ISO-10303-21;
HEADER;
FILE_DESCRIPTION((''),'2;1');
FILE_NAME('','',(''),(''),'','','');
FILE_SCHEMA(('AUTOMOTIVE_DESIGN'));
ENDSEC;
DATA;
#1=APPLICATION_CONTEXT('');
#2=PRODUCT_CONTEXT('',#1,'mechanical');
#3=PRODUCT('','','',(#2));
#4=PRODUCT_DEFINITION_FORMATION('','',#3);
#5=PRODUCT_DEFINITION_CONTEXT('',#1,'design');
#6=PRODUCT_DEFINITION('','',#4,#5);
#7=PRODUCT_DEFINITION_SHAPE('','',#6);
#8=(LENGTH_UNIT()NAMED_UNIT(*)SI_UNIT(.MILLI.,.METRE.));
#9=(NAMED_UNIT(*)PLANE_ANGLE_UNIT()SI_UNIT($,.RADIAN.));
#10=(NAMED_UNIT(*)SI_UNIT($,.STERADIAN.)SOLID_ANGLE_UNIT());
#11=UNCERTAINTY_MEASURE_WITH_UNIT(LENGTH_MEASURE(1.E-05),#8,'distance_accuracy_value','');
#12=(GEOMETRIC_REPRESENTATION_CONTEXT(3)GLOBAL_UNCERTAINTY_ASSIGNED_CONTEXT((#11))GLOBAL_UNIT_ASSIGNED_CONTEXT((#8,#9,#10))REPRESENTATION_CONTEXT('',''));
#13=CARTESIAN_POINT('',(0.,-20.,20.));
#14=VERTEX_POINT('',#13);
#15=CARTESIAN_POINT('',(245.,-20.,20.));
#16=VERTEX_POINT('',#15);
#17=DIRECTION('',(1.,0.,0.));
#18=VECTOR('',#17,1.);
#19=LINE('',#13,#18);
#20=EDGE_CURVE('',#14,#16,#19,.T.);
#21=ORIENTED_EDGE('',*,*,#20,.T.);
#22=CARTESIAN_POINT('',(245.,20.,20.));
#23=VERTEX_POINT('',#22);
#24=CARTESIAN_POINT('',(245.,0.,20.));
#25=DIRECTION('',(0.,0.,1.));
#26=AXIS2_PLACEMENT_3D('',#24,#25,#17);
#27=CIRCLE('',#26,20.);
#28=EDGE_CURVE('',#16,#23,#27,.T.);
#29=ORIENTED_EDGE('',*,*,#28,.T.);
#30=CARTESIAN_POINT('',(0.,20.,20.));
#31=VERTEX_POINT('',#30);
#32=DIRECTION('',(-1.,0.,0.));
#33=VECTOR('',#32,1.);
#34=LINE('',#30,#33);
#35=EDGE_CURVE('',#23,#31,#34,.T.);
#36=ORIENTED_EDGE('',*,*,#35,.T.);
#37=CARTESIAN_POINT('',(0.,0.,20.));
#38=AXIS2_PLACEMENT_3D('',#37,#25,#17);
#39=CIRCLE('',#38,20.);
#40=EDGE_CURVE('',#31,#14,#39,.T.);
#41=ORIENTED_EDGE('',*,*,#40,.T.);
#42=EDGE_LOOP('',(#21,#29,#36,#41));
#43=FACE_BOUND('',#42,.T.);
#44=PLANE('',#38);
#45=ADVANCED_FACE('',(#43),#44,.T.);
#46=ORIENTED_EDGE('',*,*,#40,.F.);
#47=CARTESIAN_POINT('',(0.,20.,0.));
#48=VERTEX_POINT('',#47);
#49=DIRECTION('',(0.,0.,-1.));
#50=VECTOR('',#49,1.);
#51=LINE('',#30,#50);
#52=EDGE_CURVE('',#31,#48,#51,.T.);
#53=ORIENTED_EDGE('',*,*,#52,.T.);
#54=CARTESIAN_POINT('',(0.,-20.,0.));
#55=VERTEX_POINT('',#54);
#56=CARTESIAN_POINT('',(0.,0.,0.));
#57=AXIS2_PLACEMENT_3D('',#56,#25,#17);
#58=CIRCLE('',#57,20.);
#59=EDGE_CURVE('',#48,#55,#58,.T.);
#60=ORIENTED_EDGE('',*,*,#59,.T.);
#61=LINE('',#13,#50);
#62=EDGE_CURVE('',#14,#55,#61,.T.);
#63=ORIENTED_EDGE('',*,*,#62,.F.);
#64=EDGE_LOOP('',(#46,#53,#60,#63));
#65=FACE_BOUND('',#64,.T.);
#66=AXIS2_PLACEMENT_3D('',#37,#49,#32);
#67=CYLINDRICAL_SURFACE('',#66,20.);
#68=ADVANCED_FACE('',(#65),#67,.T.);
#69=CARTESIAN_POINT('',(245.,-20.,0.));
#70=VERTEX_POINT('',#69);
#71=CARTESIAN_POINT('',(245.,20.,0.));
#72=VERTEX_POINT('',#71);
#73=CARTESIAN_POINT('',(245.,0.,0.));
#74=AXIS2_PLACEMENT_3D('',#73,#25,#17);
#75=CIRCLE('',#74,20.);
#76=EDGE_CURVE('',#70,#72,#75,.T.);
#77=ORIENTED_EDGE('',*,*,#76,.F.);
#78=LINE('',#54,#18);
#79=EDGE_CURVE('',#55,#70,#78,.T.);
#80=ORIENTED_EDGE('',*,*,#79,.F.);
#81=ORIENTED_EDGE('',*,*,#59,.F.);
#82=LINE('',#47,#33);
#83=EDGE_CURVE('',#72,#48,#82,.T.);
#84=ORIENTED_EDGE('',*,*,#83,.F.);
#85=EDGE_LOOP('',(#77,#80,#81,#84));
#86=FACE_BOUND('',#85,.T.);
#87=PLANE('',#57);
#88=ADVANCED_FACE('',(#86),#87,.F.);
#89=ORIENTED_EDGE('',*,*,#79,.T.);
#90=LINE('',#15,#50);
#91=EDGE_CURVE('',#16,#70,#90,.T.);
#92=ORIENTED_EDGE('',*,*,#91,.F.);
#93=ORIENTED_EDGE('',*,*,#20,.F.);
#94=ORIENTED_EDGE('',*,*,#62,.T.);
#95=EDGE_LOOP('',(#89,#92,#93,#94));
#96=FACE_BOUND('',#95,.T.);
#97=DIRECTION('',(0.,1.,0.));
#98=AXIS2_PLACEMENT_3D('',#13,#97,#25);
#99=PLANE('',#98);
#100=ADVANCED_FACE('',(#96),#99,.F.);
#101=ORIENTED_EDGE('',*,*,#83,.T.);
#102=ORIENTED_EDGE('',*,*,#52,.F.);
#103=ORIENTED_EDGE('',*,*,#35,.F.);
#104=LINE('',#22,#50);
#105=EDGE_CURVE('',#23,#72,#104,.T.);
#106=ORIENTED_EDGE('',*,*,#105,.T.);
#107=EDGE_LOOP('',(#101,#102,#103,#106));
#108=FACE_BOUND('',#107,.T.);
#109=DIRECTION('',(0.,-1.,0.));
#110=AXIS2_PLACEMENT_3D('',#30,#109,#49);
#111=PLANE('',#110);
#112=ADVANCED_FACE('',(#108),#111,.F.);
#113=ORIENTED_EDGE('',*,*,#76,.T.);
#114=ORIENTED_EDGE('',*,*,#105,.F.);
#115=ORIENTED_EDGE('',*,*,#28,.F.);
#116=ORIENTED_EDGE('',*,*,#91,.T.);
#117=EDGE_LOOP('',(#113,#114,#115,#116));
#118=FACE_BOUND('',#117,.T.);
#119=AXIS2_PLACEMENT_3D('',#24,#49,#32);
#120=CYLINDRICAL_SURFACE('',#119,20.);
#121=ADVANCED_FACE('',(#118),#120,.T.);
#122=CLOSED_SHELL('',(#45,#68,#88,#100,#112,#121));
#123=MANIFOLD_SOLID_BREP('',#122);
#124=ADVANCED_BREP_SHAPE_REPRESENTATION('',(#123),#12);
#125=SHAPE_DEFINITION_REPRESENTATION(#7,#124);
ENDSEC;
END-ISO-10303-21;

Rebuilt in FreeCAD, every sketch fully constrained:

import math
import FreeCAD as App
import Part
import Sketcher
Q = App.Units.Quantity

doc = App.newDocument("Part")
body = doc.addObject("PartDesign::Body", "Body")

# Sketch on XY plane
sketch1 = doc.addObject("Sketcher::SketchObject", "Sketch")
body.addObject(sketch1)
sketch1.AttachmentSupport = (doc.XY_Plane, [""])
sketch1.MapMode = "FlatFace"
sketch1.addGeometry(Part.LineSegment(App.Vector(245, 20, 0), App.Vector(0, 20, 0)), False)
sketch1.addGeometry(Part.ArcOfCircle(Part.Circle(App.Vector(0, 0, 0), App.Vector(0, 0, 1), 20), math.radians(90), math.radians(270)), False)
sketch1.addGeometry(Part.LineSegment(App.Vector(0, -20, 0), App.Vector(245, -20, 0)), False)
sketch1.addGeometry(Part.ArcOfCircle(Part.Circle(App.Vector(245, 0, 0), App.Vector(0, 0, 1), 20), math.radians(-90), math.radians(90)), False)
sketch1.addConstraint(Sketcher.Constraint("Tangent", 0, 2, 1, 1))
sketch1.addConstraint(Sketcher.Constraint("Tangent", 1, 2, 2, 1))
sketch1.addConstraint(Sketcher.Constraint("Tangent", 2, 2, 3, 1))
sketch1.addConstraint(Sketcher.Constraint("Tangent", 3, 2, 0, 1))
sketch1.addConstraint(Sketcher.Constraint("Horizontal", 0))
sketch1.addConstraint(Sketcher.Constraint("Horizontal", 2))
sketch1.addConstraint(Sketcher.Constraint("Coincident", 1, 3, -1, 1))
sketch1.addConstraint(Sketcher.Constraint("Radius", 1, Q("20 mm")))
sketch1.addConstraint(Sketcher.Constraint("DistanceX", 0, 2, 0, 1, Q("245 mm")))
pad1 = doc.addObject("PartDesign::Pad", "Pad")
body.addObject(pad1)
pad1.Profile = sketch1
pad1.Length = 20

doc.recompute()
